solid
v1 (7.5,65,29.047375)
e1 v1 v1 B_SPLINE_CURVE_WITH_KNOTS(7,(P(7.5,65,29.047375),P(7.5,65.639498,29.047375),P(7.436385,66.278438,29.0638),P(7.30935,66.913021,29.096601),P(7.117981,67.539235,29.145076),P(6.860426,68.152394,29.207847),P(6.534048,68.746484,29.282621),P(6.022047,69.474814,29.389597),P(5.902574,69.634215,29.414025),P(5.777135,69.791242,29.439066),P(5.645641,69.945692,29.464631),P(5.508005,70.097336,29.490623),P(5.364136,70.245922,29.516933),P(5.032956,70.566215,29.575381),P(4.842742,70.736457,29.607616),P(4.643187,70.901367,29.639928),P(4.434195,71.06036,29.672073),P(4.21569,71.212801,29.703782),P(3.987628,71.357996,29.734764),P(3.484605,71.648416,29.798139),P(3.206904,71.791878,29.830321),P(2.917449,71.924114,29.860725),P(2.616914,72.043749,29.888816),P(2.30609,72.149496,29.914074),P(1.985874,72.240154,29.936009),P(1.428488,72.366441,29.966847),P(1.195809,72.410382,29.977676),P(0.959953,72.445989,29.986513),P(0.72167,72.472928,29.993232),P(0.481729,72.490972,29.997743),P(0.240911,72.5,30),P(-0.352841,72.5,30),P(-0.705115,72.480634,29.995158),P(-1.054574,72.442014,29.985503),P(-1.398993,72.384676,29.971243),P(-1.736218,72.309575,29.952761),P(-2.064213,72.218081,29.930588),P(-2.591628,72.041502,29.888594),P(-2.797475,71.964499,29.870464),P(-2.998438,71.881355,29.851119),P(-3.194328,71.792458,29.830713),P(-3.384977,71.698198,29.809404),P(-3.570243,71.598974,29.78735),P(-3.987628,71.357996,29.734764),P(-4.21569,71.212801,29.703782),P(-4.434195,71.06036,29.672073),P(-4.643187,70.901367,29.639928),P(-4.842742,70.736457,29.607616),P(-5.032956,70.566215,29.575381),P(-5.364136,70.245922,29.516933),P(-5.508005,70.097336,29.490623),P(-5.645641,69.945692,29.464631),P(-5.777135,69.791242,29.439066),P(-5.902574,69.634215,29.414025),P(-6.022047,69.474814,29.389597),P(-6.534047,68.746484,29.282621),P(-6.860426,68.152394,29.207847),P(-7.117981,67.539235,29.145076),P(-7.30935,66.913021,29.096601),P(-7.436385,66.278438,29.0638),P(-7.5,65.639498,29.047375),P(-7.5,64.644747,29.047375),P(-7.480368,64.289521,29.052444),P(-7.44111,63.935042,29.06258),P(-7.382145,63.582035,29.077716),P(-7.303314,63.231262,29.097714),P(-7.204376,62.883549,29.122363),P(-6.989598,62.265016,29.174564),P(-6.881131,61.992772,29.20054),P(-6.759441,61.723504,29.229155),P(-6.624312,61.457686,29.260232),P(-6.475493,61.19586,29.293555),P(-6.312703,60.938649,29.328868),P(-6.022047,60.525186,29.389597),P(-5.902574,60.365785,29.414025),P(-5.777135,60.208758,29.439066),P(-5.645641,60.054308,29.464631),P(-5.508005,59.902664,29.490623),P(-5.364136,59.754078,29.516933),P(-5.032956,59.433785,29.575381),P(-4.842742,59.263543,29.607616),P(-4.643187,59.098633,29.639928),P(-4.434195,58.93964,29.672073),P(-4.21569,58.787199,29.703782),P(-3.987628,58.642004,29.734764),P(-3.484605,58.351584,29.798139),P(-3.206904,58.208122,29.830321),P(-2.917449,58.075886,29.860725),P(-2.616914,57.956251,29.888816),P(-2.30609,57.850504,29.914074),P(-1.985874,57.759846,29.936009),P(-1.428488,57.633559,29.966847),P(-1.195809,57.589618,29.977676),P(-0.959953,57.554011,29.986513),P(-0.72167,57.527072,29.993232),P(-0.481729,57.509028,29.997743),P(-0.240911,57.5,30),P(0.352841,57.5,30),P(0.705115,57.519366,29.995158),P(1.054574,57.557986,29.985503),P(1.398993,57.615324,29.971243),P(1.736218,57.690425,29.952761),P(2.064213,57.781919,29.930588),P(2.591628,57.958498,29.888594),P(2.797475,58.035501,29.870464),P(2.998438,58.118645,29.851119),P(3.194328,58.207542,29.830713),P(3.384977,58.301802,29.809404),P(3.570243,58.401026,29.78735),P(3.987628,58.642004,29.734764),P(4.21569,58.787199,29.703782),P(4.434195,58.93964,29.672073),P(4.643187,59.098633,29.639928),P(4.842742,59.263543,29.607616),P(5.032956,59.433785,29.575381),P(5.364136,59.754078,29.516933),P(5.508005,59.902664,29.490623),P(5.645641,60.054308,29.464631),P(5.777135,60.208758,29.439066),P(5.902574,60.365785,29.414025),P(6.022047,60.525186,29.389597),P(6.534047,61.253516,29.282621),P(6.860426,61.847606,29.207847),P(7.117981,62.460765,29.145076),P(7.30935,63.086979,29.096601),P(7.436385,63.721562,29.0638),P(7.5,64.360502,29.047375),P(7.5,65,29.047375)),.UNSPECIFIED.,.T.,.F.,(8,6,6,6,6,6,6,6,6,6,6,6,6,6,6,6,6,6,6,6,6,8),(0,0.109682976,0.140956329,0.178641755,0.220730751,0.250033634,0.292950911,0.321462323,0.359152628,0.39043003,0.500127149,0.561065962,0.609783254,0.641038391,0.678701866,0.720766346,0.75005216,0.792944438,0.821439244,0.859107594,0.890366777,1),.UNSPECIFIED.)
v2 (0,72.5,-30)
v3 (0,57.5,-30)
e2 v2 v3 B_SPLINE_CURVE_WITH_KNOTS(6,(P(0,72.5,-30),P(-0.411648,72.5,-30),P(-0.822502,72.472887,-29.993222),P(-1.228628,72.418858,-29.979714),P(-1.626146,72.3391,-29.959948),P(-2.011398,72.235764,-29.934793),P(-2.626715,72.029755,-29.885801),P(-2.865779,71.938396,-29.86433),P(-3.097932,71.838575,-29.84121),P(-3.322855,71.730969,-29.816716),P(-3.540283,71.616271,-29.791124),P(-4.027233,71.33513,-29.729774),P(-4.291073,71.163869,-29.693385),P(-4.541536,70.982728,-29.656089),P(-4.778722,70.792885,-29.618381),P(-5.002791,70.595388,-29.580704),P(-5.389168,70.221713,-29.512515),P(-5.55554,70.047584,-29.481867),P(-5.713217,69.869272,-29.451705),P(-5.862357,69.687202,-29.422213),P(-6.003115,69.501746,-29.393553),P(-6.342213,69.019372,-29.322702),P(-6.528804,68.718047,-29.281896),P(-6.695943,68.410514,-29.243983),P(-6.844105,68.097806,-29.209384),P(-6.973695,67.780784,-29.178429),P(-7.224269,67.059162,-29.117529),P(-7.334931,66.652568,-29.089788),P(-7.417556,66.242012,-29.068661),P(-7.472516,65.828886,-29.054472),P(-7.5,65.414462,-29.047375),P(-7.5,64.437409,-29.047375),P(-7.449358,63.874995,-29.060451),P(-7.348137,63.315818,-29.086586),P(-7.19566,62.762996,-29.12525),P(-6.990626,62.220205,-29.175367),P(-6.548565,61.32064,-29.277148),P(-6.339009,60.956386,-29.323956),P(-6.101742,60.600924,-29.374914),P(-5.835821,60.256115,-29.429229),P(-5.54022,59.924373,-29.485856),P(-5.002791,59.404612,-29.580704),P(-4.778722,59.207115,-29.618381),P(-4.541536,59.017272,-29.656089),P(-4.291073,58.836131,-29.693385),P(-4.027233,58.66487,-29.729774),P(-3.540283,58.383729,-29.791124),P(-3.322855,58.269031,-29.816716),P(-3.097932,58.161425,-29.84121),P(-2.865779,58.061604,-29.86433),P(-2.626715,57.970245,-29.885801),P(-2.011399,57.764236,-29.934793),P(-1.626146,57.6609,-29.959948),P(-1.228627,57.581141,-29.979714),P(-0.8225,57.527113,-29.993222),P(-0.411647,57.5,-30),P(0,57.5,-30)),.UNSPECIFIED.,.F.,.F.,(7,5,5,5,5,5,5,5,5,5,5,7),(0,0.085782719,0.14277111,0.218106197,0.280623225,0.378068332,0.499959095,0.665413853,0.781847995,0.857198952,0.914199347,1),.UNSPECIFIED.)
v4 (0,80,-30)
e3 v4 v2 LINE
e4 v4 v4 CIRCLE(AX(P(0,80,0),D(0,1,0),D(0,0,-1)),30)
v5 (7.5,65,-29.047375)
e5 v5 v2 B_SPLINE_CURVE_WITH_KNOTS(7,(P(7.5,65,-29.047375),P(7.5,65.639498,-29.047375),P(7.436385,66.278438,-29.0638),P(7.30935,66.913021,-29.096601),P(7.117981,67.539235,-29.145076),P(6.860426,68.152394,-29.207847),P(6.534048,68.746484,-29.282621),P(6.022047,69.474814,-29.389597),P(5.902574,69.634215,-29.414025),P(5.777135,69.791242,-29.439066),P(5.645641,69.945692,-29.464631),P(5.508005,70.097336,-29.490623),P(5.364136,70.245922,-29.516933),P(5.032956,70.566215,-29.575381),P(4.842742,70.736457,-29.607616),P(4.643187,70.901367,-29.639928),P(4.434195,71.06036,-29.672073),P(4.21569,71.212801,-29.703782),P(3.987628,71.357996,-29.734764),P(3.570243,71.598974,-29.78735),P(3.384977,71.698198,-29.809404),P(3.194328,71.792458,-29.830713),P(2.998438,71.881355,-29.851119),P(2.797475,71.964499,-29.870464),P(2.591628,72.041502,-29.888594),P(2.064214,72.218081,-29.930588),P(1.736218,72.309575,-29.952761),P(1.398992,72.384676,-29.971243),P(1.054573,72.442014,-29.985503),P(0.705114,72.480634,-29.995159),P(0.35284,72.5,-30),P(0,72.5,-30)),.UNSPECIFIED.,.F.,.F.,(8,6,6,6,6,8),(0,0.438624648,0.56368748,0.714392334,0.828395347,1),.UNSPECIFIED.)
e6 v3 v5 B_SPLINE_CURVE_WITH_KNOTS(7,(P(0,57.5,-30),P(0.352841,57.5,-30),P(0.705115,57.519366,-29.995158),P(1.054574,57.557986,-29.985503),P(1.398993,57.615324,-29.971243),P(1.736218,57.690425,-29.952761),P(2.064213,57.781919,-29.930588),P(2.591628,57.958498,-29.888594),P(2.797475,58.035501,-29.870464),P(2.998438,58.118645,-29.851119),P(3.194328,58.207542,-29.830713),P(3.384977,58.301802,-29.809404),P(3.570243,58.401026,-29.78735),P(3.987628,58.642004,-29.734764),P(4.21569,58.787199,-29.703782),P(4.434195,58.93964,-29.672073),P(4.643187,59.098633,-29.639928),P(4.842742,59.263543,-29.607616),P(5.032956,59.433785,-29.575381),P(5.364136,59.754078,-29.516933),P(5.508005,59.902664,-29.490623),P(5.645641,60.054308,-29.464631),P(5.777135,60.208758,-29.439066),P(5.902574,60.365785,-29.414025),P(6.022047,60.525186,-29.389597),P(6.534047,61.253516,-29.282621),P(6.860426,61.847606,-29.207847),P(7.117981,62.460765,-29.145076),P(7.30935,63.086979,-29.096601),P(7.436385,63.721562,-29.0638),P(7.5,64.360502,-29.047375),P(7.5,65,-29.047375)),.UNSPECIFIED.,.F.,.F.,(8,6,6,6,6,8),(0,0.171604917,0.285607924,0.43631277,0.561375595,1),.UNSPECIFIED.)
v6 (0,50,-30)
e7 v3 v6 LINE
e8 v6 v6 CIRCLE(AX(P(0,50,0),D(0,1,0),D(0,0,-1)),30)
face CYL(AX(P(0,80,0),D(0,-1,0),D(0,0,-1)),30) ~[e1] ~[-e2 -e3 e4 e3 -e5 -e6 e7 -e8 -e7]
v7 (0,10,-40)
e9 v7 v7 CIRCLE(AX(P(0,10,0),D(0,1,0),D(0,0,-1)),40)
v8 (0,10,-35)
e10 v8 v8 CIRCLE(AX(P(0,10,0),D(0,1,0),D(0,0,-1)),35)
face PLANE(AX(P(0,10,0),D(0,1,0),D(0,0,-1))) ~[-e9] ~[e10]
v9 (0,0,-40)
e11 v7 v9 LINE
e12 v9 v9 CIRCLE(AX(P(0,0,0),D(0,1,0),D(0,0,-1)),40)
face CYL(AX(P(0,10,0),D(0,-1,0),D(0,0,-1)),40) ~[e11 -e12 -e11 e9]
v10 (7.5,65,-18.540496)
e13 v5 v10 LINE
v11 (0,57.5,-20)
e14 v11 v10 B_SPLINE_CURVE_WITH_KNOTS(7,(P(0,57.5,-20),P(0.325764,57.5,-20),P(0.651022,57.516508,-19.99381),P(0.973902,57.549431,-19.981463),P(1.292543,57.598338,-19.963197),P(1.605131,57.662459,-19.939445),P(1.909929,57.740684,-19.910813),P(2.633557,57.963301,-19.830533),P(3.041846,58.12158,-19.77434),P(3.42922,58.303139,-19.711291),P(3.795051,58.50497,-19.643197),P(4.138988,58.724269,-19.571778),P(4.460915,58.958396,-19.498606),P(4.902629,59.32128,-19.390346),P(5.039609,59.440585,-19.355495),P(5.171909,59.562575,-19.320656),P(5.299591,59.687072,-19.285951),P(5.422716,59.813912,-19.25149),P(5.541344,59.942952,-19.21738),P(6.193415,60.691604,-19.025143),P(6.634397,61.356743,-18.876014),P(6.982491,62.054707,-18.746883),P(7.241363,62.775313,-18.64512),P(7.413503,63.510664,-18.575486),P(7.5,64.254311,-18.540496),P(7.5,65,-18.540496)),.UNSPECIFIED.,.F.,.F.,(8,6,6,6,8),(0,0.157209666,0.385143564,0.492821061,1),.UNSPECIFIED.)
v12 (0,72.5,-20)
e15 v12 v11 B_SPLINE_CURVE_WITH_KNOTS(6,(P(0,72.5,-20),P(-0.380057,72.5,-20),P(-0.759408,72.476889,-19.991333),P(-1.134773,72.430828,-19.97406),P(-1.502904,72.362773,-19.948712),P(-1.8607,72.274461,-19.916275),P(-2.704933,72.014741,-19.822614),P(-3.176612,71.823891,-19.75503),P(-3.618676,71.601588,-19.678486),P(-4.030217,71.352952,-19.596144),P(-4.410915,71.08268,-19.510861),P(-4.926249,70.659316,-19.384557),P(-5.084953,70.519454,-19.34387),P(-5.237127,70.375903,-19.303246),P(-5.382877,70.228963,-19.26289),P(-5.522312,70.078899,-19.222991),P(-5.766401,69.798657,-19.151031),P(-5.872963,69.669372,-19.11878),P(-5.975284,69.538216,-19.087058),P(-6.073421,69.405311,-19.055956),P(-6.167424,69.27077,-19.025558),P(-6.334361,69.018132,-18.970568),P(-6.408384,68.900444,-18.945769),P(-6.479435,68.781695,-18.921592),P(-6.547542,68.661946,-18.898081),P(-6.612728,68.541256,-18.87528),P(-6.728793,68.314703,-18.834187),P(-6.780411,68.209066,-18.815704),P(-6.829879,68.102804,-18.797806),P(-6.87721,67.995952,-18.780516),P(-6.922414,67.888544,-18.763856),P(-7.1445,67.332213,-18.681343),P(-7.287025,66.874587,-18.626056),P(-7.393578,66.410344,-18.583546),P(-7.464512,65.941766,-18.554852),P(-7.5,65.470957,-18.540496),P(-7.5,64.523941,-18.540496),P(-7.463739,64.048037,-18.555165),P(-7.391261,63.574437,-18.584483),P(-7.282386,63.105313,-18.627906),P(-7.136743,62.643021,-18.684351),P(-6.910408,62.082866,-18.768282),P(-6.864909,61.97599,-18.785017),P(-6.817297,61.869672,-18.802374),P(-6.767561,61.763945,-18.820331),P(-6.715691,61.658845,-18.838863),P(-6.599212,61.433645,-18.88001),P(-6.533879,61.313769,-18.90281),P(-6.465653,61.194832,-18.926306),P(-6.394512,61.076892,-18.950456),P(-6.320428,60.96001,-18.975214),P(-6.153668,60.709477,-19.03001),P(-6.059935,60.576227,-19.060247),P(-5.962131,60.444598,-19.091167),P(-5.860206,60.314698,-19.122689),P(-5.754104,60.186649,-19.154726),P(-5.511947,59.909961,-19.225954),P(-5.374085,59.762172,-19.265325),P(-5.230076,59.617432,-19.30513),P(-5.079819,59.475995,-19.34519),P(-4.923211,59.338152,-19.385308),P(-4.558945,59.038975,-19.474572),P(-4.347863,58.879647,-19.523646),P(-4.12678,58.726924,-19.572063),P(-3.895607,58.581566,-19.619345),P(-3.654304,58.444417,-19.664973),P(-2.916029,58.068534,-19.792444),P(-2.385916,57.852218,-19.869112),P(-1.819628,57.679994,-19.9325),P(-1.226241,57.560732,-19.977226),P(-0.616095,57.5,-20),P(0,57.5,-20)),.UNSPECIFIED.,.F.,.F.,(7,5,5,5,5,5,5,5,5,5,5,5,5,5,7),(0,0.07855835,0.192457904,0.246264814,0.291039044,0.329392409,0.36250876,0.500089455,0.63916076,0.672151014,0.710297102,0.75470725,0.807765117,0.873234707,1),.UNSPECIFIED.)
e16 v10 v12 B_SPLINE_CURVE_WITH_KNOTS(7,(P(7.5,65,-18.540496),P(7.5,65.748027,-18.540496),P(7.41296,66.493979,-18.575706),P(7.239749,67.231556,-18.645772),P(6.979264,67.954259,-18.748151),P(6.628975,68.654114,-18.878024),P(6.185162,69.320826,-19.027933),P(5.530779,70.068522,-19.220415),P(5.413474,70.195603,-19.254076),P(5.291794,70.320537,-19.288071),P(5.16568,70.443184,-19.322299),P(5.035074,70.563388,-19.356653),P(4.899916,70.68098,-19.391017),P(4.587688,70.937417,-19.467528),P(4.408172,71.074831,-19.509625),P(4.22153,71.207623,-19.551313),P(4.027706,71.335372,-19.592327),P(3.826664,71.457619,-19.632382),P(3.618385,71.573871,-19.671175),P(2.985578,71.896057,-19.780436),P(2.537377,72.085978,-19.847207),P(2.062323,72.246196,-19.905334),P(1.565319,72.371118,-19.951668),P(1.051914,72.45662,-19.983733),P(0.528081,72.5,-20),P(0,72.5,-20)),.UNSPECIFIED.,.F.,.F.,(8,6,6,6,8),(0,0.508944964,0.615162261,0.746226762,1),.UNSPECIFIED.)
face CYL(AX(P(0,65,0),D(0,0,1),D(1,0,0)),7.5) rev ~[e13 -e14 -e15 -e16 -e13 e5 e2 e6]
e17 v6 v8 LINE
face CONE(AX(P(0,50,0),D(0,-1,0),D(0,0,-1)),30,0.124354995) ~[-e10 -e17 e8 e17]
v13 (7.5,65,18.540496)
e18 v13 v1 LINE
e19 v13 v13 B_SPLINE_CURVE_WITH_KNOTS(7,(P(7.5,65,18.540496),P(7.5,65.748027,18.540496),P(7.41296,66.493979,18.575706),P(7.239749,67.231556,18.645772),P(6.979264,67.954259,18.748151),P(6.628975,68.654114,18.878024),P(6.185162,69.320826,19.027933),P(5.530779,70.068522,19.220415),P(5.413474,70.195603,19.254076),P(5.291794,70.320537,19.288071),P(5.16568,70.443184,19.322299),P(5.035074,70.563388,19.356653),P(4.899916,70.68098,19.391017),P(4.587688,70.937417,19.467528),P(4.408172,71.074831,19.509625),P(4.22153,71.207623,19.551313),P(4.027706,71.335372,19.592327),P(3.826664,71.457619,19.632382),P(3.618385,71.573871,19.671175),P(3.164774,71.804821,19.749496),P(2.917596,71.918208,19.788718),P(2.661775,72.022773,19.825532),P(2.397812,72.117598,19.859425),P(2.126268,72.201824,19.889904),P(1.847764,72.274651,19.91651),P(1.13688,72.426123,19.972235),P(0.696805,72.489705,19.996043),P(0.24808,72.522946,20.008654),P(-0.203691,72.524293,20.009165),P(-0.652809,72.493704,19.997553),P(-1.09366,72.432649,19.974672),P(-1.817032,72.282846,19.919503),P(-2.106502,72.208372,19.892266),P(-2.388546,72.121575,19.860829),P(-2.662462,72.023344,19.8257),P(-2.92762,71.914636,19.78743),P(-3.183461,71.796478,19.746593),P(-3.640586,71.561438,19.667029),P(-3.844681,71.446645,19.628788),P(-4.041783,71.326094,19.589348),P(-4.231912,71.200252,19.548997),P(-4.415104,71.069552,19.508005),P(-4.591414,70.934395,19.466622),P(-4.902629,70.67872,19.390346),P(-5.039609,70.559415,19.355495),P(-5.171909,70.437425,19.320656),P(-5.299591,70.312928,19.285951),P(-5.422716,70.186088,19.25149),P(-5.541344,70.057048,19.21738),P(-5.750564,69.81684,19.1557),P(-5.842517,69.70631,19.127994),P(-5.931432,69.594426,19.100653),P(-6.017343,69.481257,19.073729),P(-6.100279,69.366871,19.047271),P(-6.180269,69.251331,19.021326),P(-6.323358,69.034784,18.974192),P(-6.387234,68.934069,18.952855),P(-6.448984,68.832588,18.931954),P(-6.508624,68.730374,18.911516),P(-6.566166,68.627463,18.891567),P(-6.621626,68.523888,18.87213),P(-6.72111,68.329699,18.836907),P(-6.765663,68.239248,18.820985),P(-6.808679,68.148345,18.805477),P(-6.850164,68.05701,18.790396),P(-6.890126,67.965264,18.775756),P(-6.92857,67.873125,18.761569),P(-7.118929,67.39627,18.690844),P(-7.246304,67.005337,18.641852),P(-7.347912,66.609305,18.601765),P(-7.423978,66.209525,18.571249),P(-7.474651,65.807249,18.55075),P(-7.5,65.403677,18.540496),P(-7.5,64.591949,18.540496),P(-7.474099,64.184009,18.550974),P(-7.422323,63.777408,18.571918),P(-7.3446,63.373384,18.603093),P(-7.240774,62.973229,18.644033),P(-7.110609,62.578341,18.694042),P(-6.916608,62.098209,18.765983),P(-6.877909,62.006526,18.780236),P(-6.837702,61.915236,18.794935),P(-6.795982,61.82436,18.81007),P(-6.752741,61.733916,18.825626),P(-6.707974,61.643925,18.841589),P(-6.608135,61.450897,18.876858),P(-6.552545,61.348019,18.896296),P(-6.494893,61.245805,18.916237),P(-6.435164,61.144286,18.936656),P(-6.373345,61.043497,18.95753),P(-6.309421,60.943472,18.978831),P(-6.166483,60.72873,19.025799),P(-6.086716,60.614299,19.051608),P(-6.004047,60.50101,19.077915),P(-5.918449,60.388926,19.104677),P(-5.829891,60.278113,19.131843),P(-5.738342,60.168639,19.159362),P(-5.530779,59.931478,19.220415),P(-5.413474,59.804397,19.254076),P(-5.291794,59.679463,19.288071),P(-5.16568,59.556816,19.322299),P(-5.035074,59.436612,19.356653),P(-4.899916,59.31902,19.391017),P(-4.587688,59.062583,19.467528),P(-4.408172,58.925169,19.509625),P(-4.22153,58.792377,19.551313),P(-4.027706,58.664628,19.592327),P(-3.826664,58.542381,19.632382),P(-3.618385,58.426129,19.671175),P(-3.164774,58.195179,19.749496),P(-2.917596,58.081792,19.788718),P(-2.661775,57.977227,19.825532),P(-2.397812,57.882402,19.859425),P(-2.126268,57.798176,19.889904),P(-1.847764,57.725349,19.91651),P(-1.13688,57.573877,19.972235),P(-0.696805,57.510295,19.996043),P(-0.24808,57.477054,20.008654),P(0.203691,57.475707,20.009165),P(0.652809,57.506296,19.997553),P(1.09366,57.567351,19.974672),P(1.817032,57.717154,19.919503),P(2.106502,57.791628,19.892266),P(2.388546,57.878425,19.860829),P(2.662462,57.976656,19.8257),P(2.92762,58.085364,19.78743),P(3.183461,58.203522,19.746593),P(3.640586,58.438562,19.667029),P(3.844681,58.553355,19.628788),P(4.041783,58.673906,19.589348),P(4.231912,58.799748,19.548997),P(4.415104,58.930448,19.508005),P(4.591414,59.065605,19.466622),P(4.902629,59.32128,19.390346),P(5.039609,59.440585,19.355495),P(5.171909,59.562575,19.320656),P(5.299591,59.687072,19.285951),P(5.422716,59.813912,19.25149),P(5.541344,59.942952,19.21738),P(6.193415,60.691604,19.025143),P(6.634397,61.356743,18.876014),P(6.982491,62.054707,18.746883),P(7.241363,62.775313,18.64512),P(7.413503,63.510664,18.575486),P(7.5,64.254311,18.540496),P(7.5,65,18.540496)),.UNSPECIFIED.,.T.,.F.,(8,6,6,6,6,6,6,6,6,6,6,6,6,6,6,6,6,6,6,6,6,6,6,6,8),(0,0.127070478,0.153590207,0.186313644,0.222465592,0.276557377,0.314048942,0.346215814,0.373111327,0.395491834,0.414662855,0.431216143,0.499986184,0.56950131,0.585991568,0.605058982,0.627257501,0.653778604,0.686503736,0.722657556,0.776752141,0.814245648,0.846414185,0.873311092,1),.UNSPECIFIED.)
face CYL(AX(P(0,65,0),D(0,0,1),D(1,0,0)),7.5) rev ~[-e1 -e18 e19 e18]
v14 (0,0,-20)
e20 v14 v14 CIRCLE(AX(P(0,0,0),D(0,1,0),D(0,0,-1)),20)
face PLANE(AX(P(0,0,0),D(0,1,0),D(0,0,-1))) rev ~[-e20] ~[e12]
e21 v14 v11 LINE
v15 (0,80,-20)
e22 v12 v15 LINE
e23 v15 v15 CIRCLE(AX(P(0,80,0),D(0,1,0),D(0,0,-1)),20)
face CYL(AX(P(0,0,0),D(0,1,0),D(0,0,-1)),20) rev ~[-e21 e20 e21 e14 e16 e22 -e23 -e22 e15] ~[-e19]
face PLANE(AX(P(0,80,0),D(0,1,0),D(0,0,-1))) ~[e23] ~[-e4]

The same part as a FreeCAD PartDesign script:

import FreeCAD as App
import Part
import Sketcher
from FreeCAD import Vector


def add_polygon(sketch, points):
    """Adds a closed chain of lines whose ends are joined by coincident constraints."""
    first, n = sketch.GeometryCount, len(points)
    for a, b in zip(points, points[1:] + points[:1]):
        sketch.addGeometry(Part.LineSegment(App.Vector(*a, 0), App.Vector(*b, 0)), False)
    for i in range(n):
        sketch.addConstraint(Sketcher.Constraint("Coincident", first + i, 2, first + (i + 1) % n, 1))

doc = App.newDocument("Part")
body = doc.addObject("PartDesign::Body", "Body")

# Sketch on XY plane
sketch1 = body.newObject("Sketcher::SketchObject", "Sketch")
sketch1.AttachmentSupport = (doc.getObject("XY_Plane"), [""])
sketch1.MapMode = "FlatFace"
add_polygon(sketch1, [(20, 80), (20, 0), (40, 0), (40, 10), (35, 10), (30, 50), (30, 80)])  # lines 0-6
sketch1.addConstraint(Sketcher.Constraint("Vertical", 0))
sketch1.addConstraint(Sketcher.Constraint("Horizontal", 1))
sketch1.addConstraint(Sketcher.Constraint("Vertical", 2))
sketch1.addConstraint(Sketcher.Constraint("Horizontal", 3))
sketch1.addConstraint(Sketcher.Constraint("Vertical", 5))
sketch1.addConstraint(Sketcher.Constraint("Horizontal", 6))
sketch1.addConstraint(Sketcher.Constraint("PointOnObject", 0, 2, -1))
sketch1.addConstraint(Sketcher.Constraint("Equal", 6, 2))
sketch1.addConstraint(Sketcher.Constraint("DistanceX", 1, 1, 1, 2, 20.0))
sketch1.addConstraint(Sketcher.Constraint("DistanceX", 3, 2, 3, 1, 5.0))
sketch1.addConstraint(Sketcher.Constraint("DistanceX", 6, 2, 6, 1, 10.0))
sketch1.addConstraint(Sketcher.Constraint("DistanceY", 0, 2, 0, 1, 80.0))
sketch1.addConstraint(Sketcher.Constraint("DistanceY", 5, 1, 5, 2, 30.0))
sketch1.addConstraint(Sketcher.Constraint("DistanceX", -1, 1, 0, 2, 20.0))
revolution = body.newObject("PartDesign::Revolution", "Revolution")
revolution.Profile = sketch1
revolution.ReferenceAxis = (sketch1, ["V_Axis"])
revolution.Angle = 360

# Sketch on XY plane
sketch2 = body.newObject("Sketcher::SketchObject", "Sketch001")
sketch2.AttachmentSupport = (doc.getObject("XY_Plane"), [""])
sketch2.MapMode = "FlatFace"
sketch2.addGeometry(Part.Circle(Vector(0, 65, 0), Vector(0, 0, 1), 8), False)
sketch2.addConstraint(Sketcher.Constraint("PointOnObject", 0, 3, -2))
sketch2.addConstraint(Sketcher.Constraint("Diameter", 0, 15.0))
sketch2.addConstraint(Sketcher.Constraint("DistanceY", -1, 1, 0, 3, 65.0))
pocket1 = body.newObject("PartDesign::Pocket", "Pocket")
pocket1.Profile = sketch2
pocket1.Length = 70
pocket1.Midplane = True

doc.recompute()
